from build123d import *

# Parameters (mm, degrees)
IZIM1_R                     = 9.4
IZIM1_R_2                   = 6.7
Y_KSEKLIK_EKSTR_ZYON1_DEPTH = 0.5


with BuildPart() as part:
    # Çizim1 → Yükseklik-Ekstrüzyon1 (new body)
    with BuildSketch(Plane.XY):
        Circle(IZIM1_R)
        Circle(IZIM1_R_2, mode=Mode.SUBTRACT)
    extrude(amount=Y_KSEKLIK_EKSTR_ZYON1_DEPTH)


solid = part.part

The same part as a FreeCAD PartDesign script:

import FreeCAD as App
import Part
import Sketcher
Q = App.Units.Quantity

doc = App.newDocument("Part")
params = doc.addObject("Spreadsheet::Sheet", "Params")
for row, (alias, value) in enumerate([
    ("sketch1_diameter", "18.8 mm"),
    ("sketch1_diameter2", "13.4 mm"),
    ("pad1_length", "0.5 mm"),
], start=1):
    params.set(f"A{row}", alias)
    params.set(f"B{row}", "=" + value)
    params.setAlias(f"B{row}", alias)

body = doc.addObject("PartDesign::Body", "Body")

# Sketch on XY plane
sketch1 = body.newObject("Sketcher::SketchObject", "Sketch")
sketch1.AttachmentSupport = (doc.getObject("XY_Plane"), [""])
sketch1.MapMode = "FlatFace"
sketch1.addGeometry(Part.Circle(App.Vector(0, 0, 0), App.Vector(0, 0, 1), 9), False)
sketch1.addGeometry(Part.Circle(App.Vector(0, 0, 0), App.Vector(0, 0, 1), 7), False)
sketch1.addConstraint(Sketcher.Constraint("Coincident", 0, 3, -1, 1))
sketch1.addConstraint(Sketcher.Constraint("Coincident", 1, 3, -1, 1))
sketch1.addConstraint(Sketcher.Constraint("Diameter", 0, Q("18.8 mm")))
sketch1.addConstraint(Sketcher.Constraint("Diameter", 1, Q("13.4 mm")))
sketch1.setExpression("Constraints[2]", "Params.sketch1_diameter")
sketch1.setExpression("Constraints[3]", "Params.sketch1_diameter2")
pad1 = body.newObject("PartDesign::Pad", "Pad")
pad1.Profile = sketch1
pad1.setExpression("Length", "Params.pad1_length")

doc.recompute()
